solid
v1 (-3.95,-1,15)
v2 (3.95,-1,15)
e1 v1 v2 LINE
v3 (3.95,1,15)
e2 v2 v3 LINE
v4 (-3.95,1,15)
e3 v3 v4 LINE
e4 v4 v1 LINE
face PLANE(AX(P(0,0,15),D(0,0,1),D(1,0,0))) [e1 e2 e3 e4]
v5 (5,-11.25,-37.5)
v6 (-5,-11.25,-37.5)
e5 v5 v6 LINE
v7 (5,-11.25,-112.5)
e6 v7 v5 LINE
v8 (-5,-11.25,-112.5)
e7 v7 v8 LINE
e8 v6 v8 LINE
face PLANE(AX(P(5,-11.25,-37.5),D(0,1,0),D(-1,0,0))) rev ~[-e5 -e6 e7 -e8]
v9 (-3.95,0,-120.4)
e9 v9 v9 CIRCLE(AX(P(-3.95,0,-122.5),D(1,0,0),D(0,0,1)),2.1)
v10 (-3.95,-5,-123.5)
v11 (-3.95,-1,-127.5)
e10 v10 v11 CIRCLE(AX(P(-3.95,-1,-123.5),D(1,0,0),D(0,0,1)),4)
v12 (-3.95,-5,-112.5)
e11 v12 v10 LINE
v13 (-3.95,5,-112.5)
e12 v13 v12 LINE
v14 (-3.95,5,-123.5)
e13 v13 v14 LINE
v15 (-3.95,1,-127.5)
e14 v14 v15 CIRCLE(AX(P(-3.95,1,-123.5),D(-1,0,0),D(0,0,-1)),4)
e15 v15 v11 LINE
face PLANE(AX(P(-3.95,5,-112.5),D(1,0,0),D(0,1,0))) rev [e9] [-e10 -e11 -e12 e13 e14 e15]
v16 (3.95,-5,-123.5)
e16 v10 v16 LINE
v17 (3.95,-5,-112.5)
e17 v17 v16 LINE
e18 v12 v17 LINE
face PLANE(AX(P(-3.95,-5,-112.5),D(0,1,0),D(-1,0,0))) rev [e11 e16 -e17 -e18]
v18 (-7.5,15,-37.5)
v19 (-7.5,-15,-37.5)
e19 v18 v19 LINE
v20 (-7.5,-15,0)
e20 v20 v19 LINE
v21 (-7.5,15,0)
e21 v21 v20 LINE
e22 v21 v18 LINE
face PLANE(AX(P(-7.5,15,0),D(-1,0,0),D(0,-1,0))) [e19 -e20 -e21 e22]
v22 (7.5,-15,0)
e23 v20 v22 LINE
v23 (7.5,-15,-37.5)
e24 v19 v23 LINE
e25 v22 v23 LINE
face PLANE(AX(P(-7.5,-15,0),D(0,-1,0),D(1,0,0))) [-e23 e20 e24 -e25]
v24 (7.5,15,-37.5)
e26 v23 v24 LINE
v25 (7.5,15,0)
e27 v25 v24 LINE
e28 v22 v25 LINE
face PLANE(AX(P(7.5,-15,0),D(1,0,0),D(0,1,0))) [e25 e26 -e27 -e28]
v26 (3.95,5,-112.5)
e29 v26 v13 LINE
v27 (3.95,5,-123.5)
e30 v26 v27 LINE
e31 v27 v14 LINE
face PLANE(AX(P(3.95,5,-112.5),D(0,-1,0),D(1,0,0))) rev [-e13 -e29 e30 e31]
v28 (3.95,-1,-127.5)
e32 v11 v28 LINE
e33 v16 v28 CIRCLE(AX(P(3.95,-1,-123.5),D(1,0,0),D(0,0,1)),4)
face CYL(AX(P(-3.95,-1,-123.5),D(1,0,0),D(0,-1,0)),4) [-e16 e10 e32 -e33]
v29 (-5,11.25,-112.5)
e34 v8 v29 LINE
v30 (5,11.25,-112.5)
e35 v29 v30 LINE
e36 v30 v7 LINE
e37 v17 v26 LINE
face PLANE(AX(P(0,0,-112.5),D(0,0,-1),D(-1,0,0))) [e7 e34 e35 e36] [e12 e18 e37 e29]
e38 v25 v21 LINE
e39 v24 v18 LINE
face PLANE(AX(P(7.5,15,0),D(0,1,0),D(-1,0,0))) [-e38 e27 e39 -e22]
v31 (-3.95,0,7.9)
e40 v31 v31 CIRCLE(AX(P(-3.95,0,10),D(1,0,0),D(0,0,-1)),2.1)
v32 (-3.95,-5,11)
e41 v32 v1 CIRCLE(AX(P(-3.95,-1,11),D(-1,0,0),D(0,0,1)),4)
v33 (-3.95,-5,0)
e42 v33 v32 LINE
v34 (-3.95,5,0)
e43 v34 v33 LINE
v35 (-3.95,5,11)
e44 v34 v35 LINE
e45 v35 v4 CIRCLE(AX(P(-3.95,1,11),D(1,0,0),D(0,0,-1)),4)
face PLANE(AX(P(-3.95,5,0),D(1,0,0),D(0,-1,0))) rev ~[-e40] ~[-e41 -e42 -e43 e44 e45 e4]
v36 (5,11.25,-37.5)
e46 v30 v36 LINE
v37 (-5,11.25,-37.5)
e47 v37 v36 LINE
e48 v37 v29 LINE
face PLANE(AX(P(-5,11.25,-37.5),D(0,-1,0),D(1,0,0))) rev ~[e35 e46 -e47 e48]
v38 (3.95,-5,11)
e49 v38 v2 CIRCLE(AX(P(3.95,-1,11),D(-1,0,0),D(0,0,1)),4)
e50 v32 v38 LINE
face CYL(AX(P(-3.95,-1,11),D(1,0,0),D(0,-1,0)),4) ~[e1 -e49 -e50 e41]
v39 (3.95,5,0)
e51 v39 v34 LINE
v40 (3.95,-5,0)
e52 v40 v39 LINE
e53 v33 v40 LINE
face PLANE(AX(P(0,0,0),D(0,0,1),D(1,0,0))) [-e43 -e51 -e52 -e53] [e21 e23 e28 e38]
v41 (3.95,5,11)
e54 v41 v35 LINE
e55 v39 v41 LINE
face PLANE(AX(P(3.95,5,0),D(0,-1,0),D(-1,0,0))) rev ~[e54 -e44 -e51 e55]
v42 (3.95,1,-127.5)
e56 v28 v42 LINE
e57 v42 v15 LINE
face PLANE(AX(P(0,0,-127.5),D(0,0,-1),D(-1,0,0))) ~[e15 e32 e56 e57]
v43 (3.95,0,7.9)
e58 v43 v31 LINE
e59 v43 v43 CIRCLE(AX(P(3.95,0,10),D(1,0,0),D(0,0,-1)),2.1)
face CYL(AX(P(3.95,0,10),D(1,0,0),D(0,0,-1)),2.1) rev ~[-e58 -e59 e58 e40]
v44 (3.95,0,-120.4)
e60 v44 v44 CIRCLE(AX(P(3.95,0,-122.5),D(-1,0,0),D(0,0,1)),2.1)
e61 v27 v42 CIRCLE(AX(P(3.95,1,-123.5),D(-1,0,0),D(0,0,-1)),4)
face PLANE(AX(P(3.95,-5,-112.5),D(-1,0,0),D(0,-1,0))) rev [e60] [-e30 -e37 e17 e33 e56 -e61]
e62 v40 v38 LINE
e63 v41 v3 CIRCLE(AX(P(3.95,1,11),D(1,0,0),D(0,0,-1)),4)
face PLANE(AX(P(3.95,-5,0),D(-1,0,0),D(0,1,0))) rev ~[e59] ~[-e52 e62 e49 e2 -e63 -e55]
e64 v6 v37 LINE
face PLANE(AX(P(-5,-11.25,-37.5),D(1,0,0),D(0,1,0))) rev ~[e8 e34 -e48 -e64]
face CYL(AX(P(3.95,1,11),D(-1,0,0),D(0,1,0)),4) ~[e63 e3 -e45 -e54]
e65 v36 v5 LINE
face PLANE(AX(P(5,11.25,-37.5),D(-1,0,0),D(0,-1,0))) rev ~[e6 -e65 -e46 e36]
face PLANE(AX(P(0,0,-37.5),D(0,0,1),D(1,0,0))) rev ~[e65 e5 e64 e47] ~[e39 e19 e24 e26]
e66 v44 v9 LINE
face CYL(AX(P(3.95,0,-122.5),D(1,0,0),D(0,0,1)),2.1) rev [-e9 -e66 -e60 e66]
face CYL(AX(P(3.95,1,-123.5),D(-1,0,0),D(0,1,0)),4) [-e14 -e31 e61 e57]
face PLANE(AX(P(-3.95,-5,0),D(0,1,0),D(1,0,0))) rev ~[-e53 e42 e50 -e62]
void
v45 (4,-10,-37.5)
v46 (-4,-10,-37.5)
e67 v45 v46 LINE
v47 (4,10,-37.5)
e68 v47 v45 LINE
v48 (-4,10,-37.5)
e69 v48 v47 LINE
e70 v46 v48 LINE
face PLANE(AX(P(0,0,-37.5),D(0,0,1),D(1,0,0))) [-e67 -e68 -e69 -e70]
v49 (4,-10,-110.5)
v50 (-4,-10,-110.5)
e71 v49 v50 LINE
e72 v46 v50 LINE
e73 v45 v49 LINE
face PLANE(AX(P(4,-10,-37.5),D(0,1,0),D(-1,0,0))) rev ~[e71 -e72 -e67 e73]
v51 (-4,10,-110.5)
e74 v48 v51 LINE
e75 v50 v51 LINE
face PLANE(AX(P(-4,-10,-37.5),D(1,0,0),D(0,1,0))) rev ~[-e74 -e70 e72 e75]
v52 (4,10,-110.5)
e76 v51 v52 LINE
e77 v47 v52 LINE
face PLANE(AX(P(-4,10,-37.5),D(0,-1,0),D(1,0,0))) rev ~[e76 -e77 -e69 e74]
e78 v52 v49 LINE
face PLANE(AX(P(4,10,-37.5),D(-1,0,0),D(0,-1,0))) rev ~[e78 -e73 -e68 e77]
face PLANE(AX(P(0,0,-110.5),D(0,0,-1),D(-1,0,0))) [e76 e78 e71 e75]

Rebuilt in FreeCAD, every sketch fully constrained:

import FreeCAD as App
import Part
import Sketcher
from FreeCAD import Vector
Q = App.Units.Quantity


def edges_at(feature, points):
    """Names of the edges that pass closest to the given points."""
    edges = feature.Shape.Edges
    near = lambda p: min(range(len(edges)), key=lambda i: edges[i].distToShape(Part.Vertex(*p))[0])
    return sorted({f"Edge{near(p) + 1}" for p in points})


def add_polygon(sketch, points):
    """Adds a closed chain of lines whose ends are joined by coincident constraints."""
    first, n = sketch.GeometryCount, len(points)
    for a, b in zip(points, points[1:] + points[:1]):
        sketch.addGeometry(Part.LineSegment(App.Vector(*a, 0), App.Vector(*b, 0)), False)
    for i in range(n):
        sketch.addConstraint(Sketcher.Constraint("Coincident", first + i, 2, first + (i + 1) % n, 1))

doc = App.newDocument("Part")
body = doc.addObject("PartDesign::Body", "Body")

sketch1 = body.newObject("Sketcher::SketchObject", "Sketch")
sketch1.AttachmentSupport = (doc.getObject("XY_Plane"), [""])
sketch1.MapMode = "FlatFace"
add_polygon(sketch1, [(-7.5, 15), (-7.5, -15), (7.5, -15), (7.5, 15)])
sketch1.addConstraint(Sketcher.Constraint("Vertical", 0))
sketch1.addConstraint(Sketcher.Constraint("Horizontal", 1))
sketch1.addConstraint(Sketcher.Constraint("Vertical", 2))
sketch1.addConstraint(Sketcher.Constraint("Horizontal", 3))
sketch1.addConstraint(Sketcher.Constraint("Symmetric", 0, 2, 2, 2, -1, 1))
sketch1.addConstraint(Sketcher.Constraint("DistanceX", 1, 1, 1, 2, Q("15 mm")))
sketch1.addConstraint(Sketcher.Constraint("DistanceY", 0, 2, 0, 1, Q("30 mm")))
pad1 = body.newObject("PartDesign::Pad", "Pad")
pad1.Profile = sketch1
pad1.Length = 37.5
pad1.Reversed = True

sketch2 = body.newObject("Sketcher::SketchObject", "Sketch001")
sketch2.AttachmentSupport = (doc.getObject("XY_Plane"), [""])
sketch2.MapMode = "FlatFace"
sketch2.AttachmentOffset = App.Placement(Vector(0, 0, -37.5), App.Rotation())
add_polygon(sketch2, [(-5, -11.25), (-5, 11.25), (5, 11.25), (5, -11.25)])
add_polygon(sketch2, [(-4, -10), (4, -10), (4, 10), (-4, 10)])
sketch2.addConstraint(Sketcher.Constraint("Vertical", 0))
sketch2.addConstraint(Sketcher.Constraint("Horizontal", 1))
sketch2.addConstraint(Sketcher.Constraint("Vertical", 2))
sketch2.addConstraint(Sketcher.Constraint("Horizontal", 3))
sketch2.addConstraint(Sketcher.Constraint("Horizontal", 4))
sketch2.addConstraint(Sketcher.Constraint("Vertical", 5))
sketch2.addConstraint(Sketcher.Constraint("Horizontal", 6))
sketch2.addConstraint(Sketcher.Constraint("Vertical", 7))
sketch2.addConstraint(Sketcher.Constraint("Symmetric", 0, 2, 2, 2, -1, 1))
sketch2.addConstraint(Sketcher.Constraint("Symmetric", 4, 2, 6, 2, -1, 1))
sketch2.addConstraint(Sketcher.Constraint("DistanceX", 1, 1, 1, 2, Q("10 mm")))
sketch2.addConstraint(Sketcher.Constraint("DistanceX", 4, 1, 4, 2, Q("8 mm")))
sketch2.addConstraint(Sketcher.Constraint("DistanceY", 5, 1, 5, 2, Q("20 mm")))
sketch2.addConstraint(Sketcher.Constraint("DistanceY", 0, 1, 0, 2, Q("22.5 mm")))
pad2 = body.newObject("PartDesign::Pad", "Pad001")
pad2.Profile = sketch2
pad2.Length = 75
pad2.Reversed = True

sketch3 = body.newObject("Sketcher::SketchObject", "Sketch002")
sketch3.AttachmentSupport = (doc.getObject("XY_Plane"), [""])
sketch3.MapMode = "FlatFace"
add_polygon(sketch3, [(-3.95, 5), (-3.95, -5), (3.95, -5), (3.95, 5)])
sketch3.addConstraint(Sketcher.Constraint("Vertical", 0))
sketch3.addConstraint(Sketcher.Constraint("Horizontal", 1))
sketch3.addConstraint(Sketcher.Constraint("Vertical", 2))
sketch3.addConstraint(Sketcher.Constraint("Horizontal", 3))
sketch3.addConstraint(Sketcher.Constraint("Symmetric", 0, 2, 2, 2, -1, 1))
sketch3.addConstraint(Sketcher.Constraint("DistanceY", 0, 2, 0, 1, Q("10 mm")))
sketch3.addConstraint(Sketcher.Constraint("DistanceX", 1, 1, 1, 2, Q("7.9 mm")))
pad3 = body.newObject("PartDesign::Pad", "Pad002")
pad3.Profile = sketch3
pad3.Length = 15

sketch4 = body.newObject("Sketcher::SketchObject", "Sketch003")
sketch4.AttachmentSupport = (doc.getObject("YZ_Plane"), [""])
sketch4.MapMode = "FlatFace"
sketch4.AttachmentOffset = App.Placement(Vector(0, 0, 3.95), App.Rotation())
sketch4.addGeometry(Part.Circle(Vector(0, 10, 0), Vector(0, 0, 1), 2.1), False)
sketch4.addConstraint(Sketcher.Constraint("PointOnObject", 0, 3, -2))
sketch4.addConstraint(Sketcher.Constraint("Diameter", 0, Q("4.2 mm")))
sketch4.addConstraint(Sketcher.Constraint("DistanceY", -1, 1, 0, 3, Q("10 mm")))
pocket1 = body.newObject("PartDesign::Pocket", "Pocket")
pocket1.Profile = sketch4
pocket1.Length = 15

sketch5 = body.newObject("Sketcher::SketchObject", "Sketch004")
sketch5.AttachmentSupport = (doc.getObject("XY_Plane"), [""])
sketch5.MapMode = "FlatFace"
sketch5.AttachmentOffset = App.Placement(Vector(0, 0, -112.5), App.Rotation())
add_polygon(sketch5, [(-5, 11.25), (5, 11.25), (5, -11.25), (-5, -11.25)])
sketch5.addConstraint(Sketcher.Constraint("Horizontal", 0))
sketch5.addConstraint(Sketcher.Constraint("Vertical", 1))
sketch5.addConstraint(Sketcher.Constraint("Horizontal", 2))
sketch5.addConstraint(Sketcher.Constraint("Vertical", 3))
sketch5.addConstraint(Sketcher.Constraint("Symmetric", 0, 2, 2, 2, -1, 1))
sketch5.addConstraint(Sketcher.Constraint("DistanceX", 0, 1, 0, 2, Q("10 mm")))
sketch5.addConstraint(Sketcher.Constraint("DistanceY", 1, 2, 1, 1, Q("22.5 mm")))
pad4 = body.newObject("PartDesign::Pad", "Pad003")
pad4.Profile = sketch5
pad4.Length = 2
doc.recompute()

datumplane = body.newObject("PartDesign::Plane", "DatumPlane")
datumplane.AttachmentSupport = (doc.getObject("XY_Plane"), [""])
datumplane.MapMode = "FlatFace"
datumplane.AttachmentOffset = App.Placement(Vector(0, 0, -56.25), App.Rotation())
mirrored = body.newObject("PartDesign::Mirrored", "Mirrored")
mirrored.Originals = [pad3]
mirrored.MirrorPlane = (datumplane, [""])
body.Tip = mirrored
doc.recompute()

datumplane2 = body.newObject("PartDesign::Plane", "DatumPlane001")
datumplane2.AttachmentSupport = (doc.getObject("XY_Plane"), [""])
datumplane2.MapMode = "FlatFace"
datumplane2.AttachmentOffset = App.Placement(Vector(0, 0, -56.25), App.Rotation())
mirrored2 = body.newObject("PartDesign::Mirrored", "Mirrored001")
mirrored2.Originals = [pocket1]
mirrored2.MirrorPlane = (datumplane2, [""])
body.Tip = mirrored2
doc.recompute()

fillet = body.newObject("PartDesign::Fillet", "Fillet")
fillet.Base = (mirrored2, edges_at(mirrored2, [
    (0, -5, 15),
    (0, 5, 15),
    (0, -5, -127.5),
    (0, 5, -127.5),
]))
fillet.Radius = 4

doc.recompute()
